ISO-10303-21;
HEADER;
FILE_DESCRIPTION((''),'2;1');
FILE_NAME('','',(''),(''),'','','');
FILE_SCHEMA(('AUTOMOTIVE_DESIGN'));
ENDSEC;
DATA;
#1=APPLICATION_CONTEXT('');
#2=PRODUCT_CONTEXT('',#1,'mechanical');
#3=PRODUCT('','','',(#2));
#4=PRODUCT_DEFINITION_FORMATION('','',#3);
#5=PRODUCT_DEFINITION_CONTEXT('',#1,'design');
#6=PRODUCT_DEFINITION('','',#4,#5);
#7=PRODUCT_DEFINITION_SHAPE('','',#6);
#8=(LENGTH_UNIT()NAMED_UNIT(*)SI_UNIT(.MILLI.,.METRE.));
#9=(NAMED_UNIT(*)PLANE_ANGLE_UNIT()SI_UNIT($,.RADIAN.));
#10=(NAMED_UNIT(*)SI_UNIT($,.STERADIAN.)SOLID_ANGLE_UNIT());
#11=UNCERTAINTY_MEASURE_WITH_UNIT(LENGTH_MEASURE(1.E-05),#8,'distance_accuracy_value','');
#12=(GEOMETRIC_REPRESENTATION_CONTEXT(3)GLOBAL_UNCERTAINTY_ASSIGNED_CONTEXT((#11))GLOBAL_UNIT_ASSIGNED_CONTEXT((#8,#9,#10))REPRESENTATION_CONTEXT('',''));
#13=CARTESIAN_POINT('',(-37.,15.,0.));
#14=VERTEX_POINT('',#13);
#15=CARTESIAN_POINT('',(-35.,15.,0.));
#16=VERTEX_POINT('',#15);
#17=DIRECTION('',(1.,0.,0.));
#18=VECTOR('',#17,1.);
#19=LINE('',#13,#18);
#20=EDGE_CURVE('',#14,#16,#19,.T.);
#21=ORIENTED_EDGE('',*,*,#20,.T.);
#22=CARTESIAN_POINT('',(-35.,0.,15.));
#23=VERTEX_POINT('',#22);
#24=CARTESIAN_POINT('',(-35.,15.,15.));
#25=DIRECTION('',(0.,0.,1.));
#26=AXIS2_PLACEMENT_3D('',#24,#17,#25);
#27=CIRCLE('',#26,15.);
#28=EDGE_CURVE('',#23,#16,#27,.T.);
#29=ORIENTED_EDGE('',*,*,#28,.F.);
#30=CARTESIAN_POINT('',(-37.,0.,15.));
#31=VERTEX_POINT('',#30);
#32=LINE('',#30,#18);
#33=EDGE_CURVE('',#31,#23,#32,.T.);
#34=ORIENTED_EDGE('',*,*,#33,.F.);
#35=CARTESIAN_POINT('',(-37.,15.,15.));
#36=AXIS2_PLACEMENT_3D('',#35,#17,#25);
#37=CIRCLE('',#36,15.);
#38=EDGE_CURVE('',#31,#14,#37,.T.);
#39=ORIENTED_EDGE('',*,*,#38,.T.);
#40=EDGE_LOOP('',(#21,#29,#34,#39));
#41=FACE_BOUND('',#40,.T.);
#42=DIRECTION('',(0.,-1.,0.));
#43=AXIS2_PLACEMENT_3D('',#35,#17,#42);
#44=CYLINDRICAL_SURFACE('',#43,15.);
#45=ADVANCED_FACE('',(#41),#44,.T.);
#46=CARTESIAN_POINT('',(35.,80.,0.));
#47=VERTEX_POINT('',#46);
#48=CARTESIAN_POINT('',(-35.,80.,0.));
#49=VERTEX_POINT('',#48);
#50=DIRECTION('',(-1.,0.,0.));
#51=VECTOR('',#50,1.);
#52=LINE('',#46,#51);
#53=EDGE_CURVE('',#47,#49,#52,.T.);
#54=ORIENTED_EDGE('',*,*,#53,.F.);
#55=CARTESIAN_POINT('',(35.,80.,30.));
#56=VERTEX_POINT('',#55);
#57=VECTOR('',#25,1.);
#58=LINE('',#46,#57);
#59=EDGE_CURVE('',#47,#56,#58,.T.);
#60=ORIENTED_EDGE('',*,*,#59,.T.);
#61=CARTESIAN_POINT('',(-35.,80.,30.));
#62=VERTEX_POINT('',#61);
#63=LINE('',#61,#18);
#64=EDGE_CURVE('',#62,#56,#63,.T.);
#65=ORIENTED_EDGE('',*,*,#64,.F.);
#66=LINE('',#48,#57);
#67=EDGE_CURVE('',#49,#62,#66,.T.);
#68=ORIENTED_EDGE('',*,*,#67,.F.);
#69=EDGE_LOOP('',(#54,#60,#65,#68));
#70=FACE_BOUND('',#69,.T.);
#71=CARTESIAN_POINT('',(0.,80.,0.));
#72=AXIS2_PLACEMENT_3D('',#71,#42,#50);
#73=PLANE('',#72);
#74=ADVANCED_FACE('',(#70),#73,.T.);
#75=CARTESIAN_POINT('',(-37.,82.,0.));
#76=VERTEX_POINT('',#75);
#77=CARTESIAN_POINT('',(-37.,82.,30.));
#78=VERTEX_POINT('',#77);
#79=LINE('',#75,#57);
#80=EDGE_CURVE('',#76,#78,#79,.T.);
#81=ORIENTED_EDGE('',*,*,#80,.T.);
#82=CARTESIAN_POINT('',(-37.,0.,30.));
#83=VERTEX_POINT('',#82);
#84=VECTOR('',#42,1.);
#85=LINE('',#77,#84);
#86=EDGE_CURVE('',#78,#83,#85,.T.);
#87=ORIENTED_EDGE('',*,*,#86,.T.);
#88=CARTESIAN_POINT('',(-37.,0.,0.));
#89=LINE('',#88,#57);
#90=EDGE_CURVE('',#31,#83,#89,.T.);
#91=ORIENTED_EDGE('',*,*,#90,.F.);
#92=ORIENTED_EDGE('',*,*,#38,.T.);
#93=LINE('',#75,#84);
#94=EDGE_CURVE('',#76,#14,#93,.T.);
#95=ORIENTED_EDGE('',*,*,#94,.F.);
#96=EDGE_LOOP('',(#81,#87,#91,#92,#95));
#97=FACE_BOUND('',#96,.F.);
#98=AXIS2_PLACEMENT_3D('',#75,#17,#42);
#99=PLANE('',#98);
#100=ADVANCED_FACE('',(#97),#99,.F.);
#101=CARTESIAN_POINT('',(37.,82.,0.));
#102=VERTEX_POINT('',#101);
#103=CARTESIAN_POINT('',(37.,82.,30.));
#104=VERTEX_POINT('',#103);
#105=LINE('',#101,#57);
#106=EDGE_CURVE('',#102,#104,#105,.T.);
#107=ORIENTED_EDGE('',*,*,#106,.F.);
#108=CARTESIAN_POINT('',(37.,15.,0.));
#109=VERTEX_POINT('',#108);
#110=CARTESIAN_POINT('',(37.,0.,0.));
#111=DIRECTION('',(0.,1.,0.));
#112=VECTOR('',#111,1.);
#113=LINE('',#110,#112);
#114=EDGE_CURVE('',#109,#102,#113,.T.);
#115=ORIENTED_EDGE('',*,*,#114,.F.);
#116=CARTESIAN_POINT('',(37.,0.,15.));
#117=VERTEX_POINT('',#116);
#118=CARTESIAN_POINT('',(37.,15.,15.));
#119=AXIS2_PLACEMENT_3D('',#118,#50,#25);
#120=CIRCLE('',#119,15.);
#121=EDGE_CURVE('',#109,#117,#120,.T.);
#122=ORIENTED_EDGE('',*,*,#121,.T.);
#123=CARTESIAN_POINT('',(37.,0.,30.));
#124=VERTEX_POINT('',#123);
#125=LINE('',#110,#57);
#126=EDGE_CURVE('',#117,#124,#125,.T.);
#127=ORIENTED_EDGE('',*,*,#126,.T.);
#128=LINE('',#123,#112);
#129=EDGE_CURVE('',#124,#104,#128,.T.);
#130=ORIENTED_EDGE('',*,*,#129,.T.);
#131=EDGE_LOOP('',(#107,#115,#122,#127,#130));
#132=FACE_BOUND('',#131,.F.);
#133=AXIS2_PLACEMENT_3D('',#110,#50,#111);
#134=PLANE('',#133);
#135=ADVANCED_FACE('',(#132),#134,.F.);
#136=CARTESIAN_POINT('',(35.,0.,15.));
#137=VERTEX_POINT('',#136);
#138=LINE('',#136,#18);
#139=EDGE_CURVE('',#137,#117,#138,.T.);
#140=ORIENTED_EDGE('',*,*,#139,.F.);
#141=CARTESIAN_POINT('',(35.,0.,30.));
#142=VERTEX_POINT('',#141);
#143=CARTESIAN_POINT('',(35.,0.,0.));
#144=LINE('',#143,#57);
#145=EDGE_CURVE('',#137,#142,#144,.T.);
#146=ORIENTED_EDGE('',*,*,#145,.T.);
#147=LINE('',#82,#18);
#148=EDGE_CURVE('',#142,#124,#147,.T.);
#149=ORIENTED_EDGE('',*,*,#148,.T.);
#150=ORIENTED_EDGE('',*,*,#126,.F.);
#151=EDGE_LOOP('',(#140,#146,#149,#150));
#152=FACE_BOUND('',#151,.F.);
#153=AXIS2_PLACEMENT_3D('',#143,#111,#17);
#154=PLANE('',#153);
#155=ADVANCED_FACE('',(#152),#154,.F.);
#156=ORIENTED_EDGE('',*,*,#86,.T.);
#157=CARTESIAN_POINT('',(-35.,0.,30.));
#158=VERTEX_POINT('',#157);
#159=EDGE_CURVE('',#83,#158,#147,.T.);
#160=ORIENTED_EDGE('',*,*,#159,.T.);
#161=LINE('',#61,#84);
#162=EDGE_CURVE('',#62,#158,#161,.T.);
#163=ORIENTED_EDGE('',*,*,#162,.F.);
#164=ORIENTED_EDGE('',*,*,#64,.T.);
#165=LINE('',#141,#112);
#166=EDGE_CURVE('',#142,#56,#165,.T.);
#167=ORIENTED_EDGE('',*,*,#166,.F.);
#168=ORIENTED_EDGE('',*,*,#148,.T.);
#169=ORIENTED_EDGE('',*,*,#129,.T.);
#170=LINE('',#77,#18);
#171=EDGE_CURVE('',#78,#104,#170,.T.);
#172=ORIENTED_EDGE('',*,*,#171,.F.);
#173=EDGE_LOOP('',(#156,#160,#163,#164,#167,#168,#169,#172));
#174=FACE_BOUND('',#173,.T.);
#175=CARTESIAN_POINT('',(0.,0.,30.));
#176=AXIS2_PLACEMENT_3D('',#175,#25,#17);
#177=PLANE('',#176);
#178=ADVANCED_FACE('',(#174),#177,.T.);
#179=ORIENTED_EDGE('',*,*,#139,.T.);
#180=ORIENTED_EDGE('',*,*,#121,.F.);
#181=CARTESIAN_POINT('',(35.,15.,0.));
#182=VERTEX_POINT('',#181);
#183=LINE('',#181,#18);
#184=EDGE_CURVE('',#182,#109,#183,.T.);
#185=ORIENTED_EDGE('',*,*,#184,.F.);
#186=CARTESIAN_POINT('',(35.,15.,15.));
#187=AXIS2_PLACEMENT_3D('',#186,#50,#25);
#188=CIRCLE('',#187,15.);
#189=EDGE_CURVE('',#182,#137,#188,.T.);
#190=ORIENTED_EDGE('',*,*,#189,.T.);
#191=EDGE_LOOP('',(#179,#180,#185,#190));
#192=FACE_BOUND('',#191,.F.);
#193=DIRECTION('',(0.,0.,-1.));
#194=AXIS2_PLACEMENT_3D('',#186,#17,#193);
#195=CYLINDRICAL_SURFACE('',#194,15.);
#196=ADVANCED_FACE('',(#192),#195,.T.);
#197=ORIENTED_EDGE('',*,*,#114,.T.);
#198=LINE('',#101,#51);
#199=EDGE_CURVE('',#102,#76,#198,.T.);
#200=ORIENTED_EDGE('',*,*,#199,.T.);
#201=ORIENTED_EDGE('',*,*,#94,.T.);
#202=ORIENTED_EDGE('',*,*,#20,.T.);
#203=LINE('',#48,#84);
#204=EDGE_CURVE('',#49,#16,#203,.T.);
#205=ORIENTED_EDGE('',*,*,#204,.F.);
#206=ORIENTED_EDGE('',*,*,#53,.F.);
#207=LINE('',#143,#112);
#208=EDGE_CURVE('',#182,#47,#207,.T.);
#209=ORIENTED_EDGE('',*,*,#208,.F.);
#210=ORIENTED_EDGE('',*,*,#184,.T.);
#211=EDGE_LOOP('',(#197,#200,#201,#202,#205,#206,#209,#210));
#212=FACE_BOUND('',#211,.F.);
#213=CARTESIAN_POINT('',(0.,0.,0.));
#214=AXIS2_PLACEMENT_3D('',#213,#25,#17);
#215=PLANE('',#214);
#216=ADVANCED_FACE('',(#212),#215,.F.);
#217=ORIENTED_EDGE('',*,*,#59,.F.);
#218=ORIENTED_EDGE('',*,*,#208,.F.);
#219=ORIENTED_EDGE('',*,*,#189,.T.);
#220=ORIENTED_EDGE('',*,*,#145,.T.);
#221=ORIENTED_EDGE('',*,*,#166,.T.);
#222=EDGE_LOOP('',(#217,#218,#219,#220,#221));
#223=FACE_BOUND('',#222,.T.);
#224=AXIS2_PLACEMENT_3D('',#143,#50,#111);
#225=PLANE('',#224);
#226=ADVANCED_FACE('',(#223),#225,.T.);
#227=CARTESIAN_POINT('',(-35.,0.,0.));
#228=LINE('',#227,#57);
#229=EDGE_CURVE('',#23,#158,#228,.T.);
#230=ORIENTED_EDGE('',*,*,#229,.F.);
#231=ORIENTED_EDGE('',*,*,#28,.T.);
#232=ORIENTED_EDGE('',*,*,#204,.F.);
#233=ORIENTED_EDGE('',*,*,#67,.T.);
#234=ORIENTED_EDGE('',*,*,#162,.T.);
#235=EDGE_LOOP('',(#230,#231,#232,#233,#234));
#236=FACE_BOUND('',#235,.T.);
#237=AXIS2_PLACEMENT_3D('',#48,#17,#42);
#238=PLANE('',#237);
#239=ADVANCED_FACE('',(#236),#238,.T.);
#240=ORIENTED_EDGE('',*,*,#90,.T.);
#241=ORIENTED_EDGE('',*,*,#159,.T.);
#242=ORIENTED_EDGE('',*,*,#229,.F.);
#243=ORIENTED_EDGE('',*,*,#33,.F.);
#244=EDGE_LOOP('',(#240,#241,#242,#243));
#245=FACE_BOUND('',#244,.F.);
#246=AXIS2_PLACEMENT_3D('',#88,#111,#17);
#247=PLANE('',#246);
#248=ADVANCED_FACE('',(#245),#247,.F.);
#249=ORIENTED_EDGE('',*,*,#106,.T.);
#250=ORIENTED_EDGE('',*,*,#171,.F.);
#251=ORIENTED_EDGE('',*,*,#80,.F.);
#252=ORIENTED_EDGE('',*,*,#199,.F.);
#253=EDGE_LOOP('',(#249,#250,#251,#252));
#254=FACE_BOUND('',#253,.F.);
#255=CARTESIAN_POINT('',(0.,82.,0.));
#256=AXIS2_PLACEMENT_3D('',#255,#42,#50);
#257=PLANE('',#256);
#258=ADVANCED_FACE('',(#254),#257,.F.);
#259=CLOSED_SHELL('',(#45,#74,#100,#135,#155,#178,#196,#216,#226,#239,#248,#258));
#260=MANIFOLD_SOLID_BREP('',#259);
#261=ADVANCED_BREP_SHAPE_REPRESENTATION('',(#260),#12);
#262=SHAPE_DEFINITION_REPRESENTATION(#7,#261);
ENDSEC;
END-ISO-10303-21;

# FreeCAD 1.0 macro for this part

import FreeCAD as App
import Part
import Sketcher

V = App.Vector
Q = App.Units.Quantity


def edges_at(feature, points):
    """Names of the edges that pass closest to the given points."""
    edges = feature.Shape.Edges
    near = lambda p: min(range(len(edges)), key=lambda i: edges[i].distToShape(Part.Vertex(*p))[0])
    return sorted({f"Edge{near(p) + 1}" for p in points})


def add_polygon(sketch, points):
    """Adds a closed chain of lines whose ends are joined by coincident constraints."""
    first, n = sketch.GeometryCount, len(points)
    for a, b in zip(points, points[1:] + points[:1]):
        sketch.addGeometry(Part.LineSegment(App.Vector(*a, 0), App.Vector(*b, 0)), False)
    for i in range(n):
        sketch.addConstraint(Sketcher.Constraint("Coincident", first + i, 2, first + (i + 1) % n, 1))

doc = App.newDocument("Part")
params = doc.addObject("Spreadsheet::Sheet", "Params")
for row, (alias, value) in enumerate([
    ("sketch1_width", "2 mm"),
    ("sketch1_width2", "70 mm"),
    ("sketch1_height", "80 mm"),
    ("pad1_length", "30 mm"),
    ("fillet_radius", "15 mm"),
], start=1):
    params.set(f"A{row}", alias)
    params.set(f"B{row}", "=" + value)
    params.setAlias(f"B{row}", alias)

body = doc.addObject("PartDesign::Body", "Body")

# Sketch on XY plane
sketch1 = body.newObject("Sketcher::SketchObject", "Sketch")
sketch1.AttachmentSupport = (doc.getObject("XY_Plane"), [""])
sketch1.MapMode = "FlatFace"
add_polygon(sketch1, [(-37, 82), (-37, 0), (-35, 0), (-35, 80), (35, 80), (35, 0), (37, 0), (37, 82)])  # lines 0-7
sketch1.addConstraint([
    Sketcher.Constraint("Vertical", 0),
    Sketcher.Constraint("Horizontal", 1),
    Sketcher.Constraint("Vertical", 2),
    Sketcher.Constraint("Horizontal", 3),
    Sketcher.Constraint("Vertical", 4),
    Sketcher.Constraint("Horizontal", 5),
    Sketcher.Constraint("Vertical", 6),
    Sketcher.Constraint("Horizontal", 7),
    Sketcher.Constraint("Symmetric", 1, 2, 4, 2, -1, 1),
    Sketcher.Constraint("Symmetric", 0, 2, 5, 2, -2),
    Sketcher.Constraint("DistanceX", 1, 1, 1, 2, Q("2 mm")),
    Sketcher.Constraint("DistanceX", 3, 1, 3, 2, Q("70 mm")),
    Sketcher.Constraint("DistanceY", 2, 1, 2, 2, Q("80 mm")),
    Sketcher.Constraint("DistanceY", 3, 2, 6, 2, Q("2 mm")),
])
sketch1.setExpression("Constraints[18]", "Params.sketch1_width")
sketch1.setExpression("Constraints[19]", "Params.sketch1_width2")
sketch1.setExpression("Constraints[20]", "Params.sketch1_height")
pad1 = body.newObject("PartDesign::Pad", "Pad")
pad1.Profile = sketch1
pad1.setExpression("Length", "Params.pad1_length")
doc.recompute()

fillet = body.newObject("PartDesign::Fillet", "Fillet")
fillet.Base = (pad1, edges_at(pad1, [(36, 0, 0), (-36, 0, 0)]))
fillet.setExpression("Radius", "Params.fillet_radius")

doc.recompute()
